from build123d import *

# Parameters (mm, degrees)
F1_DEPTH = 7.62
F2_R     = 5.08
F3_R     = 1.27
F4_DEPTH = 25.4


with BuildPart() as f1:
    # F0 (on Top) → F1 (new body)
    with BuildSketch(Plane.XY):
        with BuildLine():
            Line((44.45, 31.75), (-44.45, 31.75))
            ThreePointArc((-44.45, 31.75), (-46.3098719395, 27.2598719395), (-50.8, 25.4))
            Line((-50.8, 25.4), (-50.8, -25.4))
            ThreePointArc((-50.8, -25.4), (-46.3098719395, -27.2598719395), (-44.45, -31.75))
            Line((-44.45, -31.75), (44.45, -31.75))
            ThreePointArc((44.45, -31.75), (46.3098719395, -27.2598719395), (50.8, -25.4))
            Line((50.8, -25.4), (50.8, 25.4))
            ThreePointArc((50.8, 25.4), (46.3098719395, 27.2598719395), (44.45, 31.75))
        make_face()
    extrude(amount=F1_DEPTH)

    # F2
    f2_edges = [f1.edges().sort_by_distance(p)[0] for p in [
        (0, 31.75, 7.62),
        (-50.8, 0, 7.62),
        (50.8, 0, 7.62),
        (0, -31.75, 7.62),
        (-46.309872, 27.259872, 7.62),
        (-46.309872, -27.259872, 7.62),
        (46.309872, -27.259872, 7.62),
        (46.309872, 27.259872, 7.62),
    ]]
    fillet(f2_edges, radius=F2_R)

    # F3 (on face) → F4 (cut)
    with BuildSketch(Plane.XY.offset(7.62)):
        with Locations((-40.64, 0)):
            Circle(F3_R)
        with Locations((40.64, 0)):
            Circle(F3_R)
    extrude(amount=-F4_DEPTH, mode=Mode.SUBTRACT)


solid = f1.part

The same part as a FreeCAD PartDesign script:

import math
import FreeCAD as App
import Part
import Sketcher

V = App.Vector
Q = App.Units.Quantity


def edges_at(feature, points):
    """Names of the edges that pass closest to the given points."""
    edges = feature.Shape.Edges
    near = lambda p: min(range(len(edges)), key=lambda i: edges[i].distToShape(Part.Vertex(*p))[0])
    return sorted({f"Edge{near(p) + 1}" for p in points})

doc = App.newDocument("Part")
body = doc.addObject("PartDesign::Body", "Body")

sketch1 = body.newObject("Sketcher::SketchObject", "Sketch")
sketch1.AttachmentSupport = (doc.getObject("XY_Plane"), [""])
sketch1.MapMode = "FlatFace"
sketch1.addGeometry([
    Part.LineSegment(V(44, 32, 0), V(-44, 32, 0)),
    Part.ArcOfCircle(Part.Circle(V(-51, 32, 0), V(0, 0, 1), 6), math.radians(-90), math.radians(0)),
    Part.LineSegment(V(-51, 25, 0), V(-51, -25, 0)),
    Part.ArcOfCircle(Part.Circle(V(-51, -32, 0), V(0, 0, 1), 6), math.radians(0), math.radians(90)),
    Part.LineSegment(V(-44, -32, 0), V(44, -32, 0)),
    Part.ArcOfCircle(Part.Circle(V(51, -32, 0), V(0, 0, 1), 6), math.radians(90), math.radians(180)),
    Part.LineSegment(V(51, -25, 0), V(51, 25, 0)),
    Part.ArcOfCircle(Part.Circle(V(51, 32, 0), V(0, 0, 1), 6), math.radians(180), math.radians(270)),
], False)
sketch1.addConstraint([
    Sketcher.Constraint("Coincident", 0, 2, 1, 2),
    Sketcher.Constraint("Coincident", 1, 1, 2, 1),
    Sketcher.Constraint("Coincident", 2, 2, 3, 2),
    Sketcher.Constraint("Coincident", 3, 1, 4, 1),
    Sketcher.Constraint("Coincident", 4, 2, 5, 2),
    Sketcher.Constraint("Coincident", 5, 1, 6, 1),
    Sketcher.Constraint("Coincident", 6, 2, 7, 2),
    Sketcher.Constraint("Coincident", 7, 1, 0, 1),
    Sketcher.Constraint("Horizontal", 0),
    Sketcher.Constraint("Vertical", 2),
    Sketcher.Constraint("Horizontal", 4),
    Sketcher.Constraint("Vertical", 6),
    Sketcher.Constraint("Equal", 1, 3),
    Sketcher.Constraint("Equal", 3, 5),
    Sketcher.Constraint("Equal", 5, 7),
    Sketcher.Constraint("Symmetric", 1, 3, 5, 3, -1, 1),
    Sketcher.Constraint("Symmetric", 3, 3, 7, 3, -1, 1),
    Sketcher.Constraint("Symmetric", 3, 3, 5, 3, -2),
    Sketcher.Constraint("Horizontal", 7, 3, 0, 2),
    Sketcher.Constraint("Horizontal", 5, 3, 3, 1),
    Sketcher.Constraint("Vertical", 3, 3, 1, 1),
    Sketcher.Constraint("Vertical", 7, 3, 5, 1),
    Sketcher.Constraint("DistanceY", 2, 2, 2, 1, Q("2 in")),
    Sketcher.Constraint("Radius", 1, Q("0.25 in")),
    Sketcher.Constraint("DistanceX", 0, 2, 0, 1, Q("3.5 in")),
])
pad1 = body.newObject("PartDesign::Pad", "Pad")
pad1.Profile = sketch1
pad1.Length = Q("0.3 in")
doc.recompute()

fillet = body.newObject("PartDesign::Fillet", "Fillet")
fillet.Base = (pad1, edges_at(pad1, [
    (0, 31.75, 7.62),
    (-50.8, 0, 7.62),
    (50.8, 0, 7.62),
    (0, -31.75, 7.62),
    (-46.31, 27.26, 7.62),
    (-46.31, -27.26, 7.62),
    (46.31, -27.26, 7.62),
    (46.31, 27.26, 7.62),
]))
fillet.Radius = Q("0.2 in")

sketch2 = body.newObject("Sketcher::SketchObject", "Sketch001")
sketch2.AttachmentSupport = (doc.getObject("XY_Plane"), [""])
sketch2.MapMode = "FlatFace"
sketch2.AttachmentOffset = App.Placement(V(0, 0, 0.3 * 25.4), App.Rotation())
sketch2.addGeometry([
    Part.Circle(V(-40.6, 0, 0), V(0, 0, 1), 1.3),
    Part.Circle(V(40.6, 0, 0), V(0, 0, 1), 1.3),
], False)
sketch2.addConstraint([
    Sketcher.Constraint("Equal", 0, 1),
    Sketcher.Constraint("Symmetric", 0, 3, 1, 3, -1, 1),
    Sketcher.Constraint("PointOnObject", 0, 3, -1),
    Sketcher.Constraint("Diameter", 0, Q("0.1 in")),
    Sketcher.Constraint("DistanceX", 0, 3, -1, 1, Q("1.6 in")),
])
pocket1 = body.newObject("PartDesign::Pocket", "Pocket")
pocket1.Profile = sketch2
pocket1.Length = Q("1 in")

doc.recompute()
